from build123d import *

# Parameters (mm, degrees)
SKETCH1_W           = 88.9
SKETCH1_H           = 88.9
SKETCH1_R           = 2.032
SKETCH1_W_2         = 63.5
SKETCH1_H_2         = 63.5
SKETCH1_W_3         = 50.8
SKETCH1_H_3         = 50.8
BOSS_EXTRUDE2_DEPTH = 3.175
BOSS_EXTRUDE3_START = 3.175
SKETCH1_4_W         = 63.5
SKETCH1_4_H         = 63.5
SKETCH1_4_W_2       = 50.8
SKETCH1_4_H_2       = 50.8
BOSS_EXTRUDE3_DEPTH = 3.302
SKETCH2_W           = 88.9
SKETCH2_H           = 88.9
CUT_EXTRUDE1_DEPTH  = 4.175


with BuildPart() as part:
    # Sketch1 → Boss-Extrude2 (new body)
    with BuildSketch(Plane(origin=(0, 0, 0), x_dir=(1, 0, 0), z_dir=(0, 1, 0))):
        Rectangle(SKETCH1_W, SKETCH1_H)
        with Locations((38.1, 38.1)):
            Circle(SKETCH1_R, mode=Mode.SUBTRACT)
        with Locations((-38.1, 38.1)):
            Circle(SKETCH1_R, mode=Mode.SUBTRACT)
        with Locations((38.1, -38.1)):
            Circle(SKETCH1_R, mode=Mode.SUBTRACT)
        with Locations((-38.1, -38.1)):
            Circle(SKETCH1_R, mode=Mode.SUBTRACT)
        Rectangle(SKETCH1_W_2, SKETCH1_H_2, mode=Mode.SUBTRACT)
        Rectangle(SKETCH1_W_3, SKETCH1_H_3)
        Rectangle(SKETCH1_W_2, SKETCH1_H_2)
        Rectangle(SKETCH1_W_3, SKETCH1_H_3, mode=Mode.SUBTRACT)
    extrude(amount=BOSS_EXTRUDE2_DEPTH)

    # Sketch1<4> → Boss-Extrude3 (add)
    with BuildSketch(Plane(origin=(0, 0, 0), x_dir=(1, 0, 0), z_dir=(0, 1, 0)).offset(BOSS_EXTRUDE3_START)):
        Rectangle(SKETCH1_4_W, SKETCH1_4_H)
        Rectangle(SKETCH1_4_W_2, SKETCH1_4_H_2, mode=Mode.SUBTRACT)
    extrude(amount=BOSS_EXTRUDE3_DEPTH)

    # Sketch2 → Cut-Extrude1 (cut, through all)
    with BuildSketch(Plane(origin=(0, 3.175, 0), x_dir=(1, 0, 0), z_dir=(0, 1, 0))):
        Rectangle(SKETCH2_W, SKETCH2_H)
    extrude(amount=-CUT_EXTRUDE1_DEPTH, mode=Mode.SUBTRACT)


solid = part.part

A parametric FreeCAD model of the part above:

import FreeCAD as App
import Part
import Sketcher
from FreeCAD import Vector
Q = App.Units.Quantity

doc = App.newDocument("Part")
params = doc.addObject("Spreadsheet::Sheet", "Params")
for row, (alias, value) in enumerate([
    ("sketch1_diameter", "0.16 in"),
    ("sketch1_width", "2 in"),
    ("sketch1_width2", "3.5 in"),
    ("pad1_length", "0.125 in"),
    ("sketch2_width", "2 in"),
    ("sketch2_width2", "2.5 in"),
    ("pad2_length", "0.13 in"),
    ("sketch3_width", "3.5 in"),
], start=1):
    params.set(f"A{row}", alias)
    params.set(f"B{row}", "=" + value)
    params.setAlias(f"B{row}", alias)

body = doc.addObject("PartDesign::Body", "Body")

sketch1 = body.newObject("Sketcher::SketchObject", "Sketch")
sketch1.AttachmentSupport = (doc.getObject("XZ_Plane"), [""])
sketch1.MapMode = "FlatFace"
sketch1.addGeometry([
    Part.LineSegment(Vector(-44.5, -44.5, 0), Vector(-44.5, 44.5, 0)),
    Part.LineSegment(Vector(-44.5, 44.5, 0), Vector(44.5, 44.5, 0)),
    Part.LineSegment(Vector(44.5, 44.5, 0), Vector(44.5, -44.5, 0)),
    Part.LineSegment(Vector(44.5, -44.5, 0), Vector(-44.5, -44.5, 0)),
    Part.Circle(Vector(-38.1, 38.1, 0), Vector(0, 0, 1), 2),
    Part.Circle(Vector(38.1, 38.1, 0), Vector(0, 0, 1), 2),
    Part.Circle(Vector(-38.1, -38.1, 0), Vector(0, 0, 1), 2),
    Part.LineSegment(Vector(25.4, 25.4, 0), Vector(-25.4, 25.4, 0)),
    Part.LineSegment(Vector(-25.4, 25.4, 0), Vector(-25.4, -25.4, 0)),
    Part.LineSegment(Vector(-25.4, -25.4, 0), Vector(25.4, -25.4, 0)),
    Part.LineSegment(Vector(25.4, -25.4, 0), Vector(25.4, 25.4, 0)),
    Part.Circle(Vector(38.1, -38.1, 0), Vector(0, 0, 1), 2),
], False)
sketch1.addConstraint([
    Sketcher.Constraint("Coincident", 0, 2, 1, 1),
    Sketcher.Constraint("Coincident", 1, 2, 2, 1),
    Sketcher.Constraint("Coincident", 2, 2, 3, 1),
    Sketcher.Constraint("Coincident", 3, 2, 0, 1),
    Sketcher.Constraint("Coincident", 7, 2, 8, 1),
    Sketcher.Constraint("Coincident", 8, 2, 9, 1),
    Sketcher.Constraint("Coincident", 9, 2, 10, 1),
    Sketcher.Constraint("Coincident", 10, 2, 7, 1),
    Sketcher.Constraint("Vertical", 0),
    Sketcher.Constraint("Horizontal", 1),
    Sketcher.Constraint("Vertical", 2),
    Sketcher.Constraint("Horizontal", 3),
    Sketcher.Constraint("Horizontal", 7),
    Sketcher.Constraint("Vertical", 8),
    Sketcher.Constraint("Horizontal", 9),
    Sketcher.Constraint("Vertical", 10),
    Sketcher.Constraint("Equal", 4, 5),
    Sketcher.Constraint("Equal", 5, 6),
    Sketcher.Constraint("Equal", 6, 11),
    Sketcher.Constraint("Symmetric", 5, 3, 6, 3, -1, 1),
    Sketcher.Constraint("Symmetric", 4, 3, 11, 3, -1, 1),
    Sketcher.Constraint("Symmetric", 0, 2, 2, 2, -1, 1),
    Sketcher.Constraint("Symmetric", 7, 2, 9, 2, -1, 1),
    Sketcher.Constraint("Symmetric", 4, 3, 5, 3, -2),
    Sketcher.Constraint("Equal", 3, 0),
    Sketcher.Constraint("Equal", 9, 8),
    Sketcher.Constraint("Diameter", 4, Q("0.16 in")),
    Sketcher.Constraint("DistanceX", 7, 2, 7, 1, Q("2 in")),
    Sketcher.Constraint("DistanceX", 1, 1, 1, 2, Q("3.5 in")),
    Sketcher.Constraint("DistanceX", 4, 3, 5, 3, Q("3 in")),
    Sketcher.Constraint("DistanceY", 6, 3, 4, 3, Q("3 in")),
])
sketch1.setExpression("Constraints[26]", "Params.sketch1_diameter")
sketch1.setExpression("Constraints[27]", "Params.sketch1_width")
sketch1.setExpression("Constraints[28]", "Params.sketch1_width2")
pad1 = body.newObject("PartDesign::Pad", "Pad")
pad1.Profile = sketch1
pad1.setExpression("Length", "Params.pad1_length")
pad1.Reversed = True

sketch2 = body.newObject("Sketcher::SketchObject", "Sketch001")
sketch2.AttachmentSupport = (doc.getObject("XZ_Plane"), [""])
sketch2.MapMode = "FlatFace"
sketch2.AttachmentOffset = App.Placement(Vector(0, 0, -0.125 * 25.4), App.Rotation())
sketch2.addGeometry([
    Part.LineSegment(Vector(-32, -32, 0), Vector(-32, 32, 0)),
    Part.LineSegment(Vector(-32, 32, 0), Vector(32, 32, 0)),
    Part.LineSegment(Vector(32, 32, 0), Vector(32, -32, 0)),
    Part.LineSegment(Vector(32, -32, 0), Vector(-32, -32, 0)),
    Part.LineSegment(Vector(25, 25, 0), Vector(-25, 25, 0)),
    Part.LineSegment(Vector(-25, 25, 0), Vector(-25, -25, 0)),
    Part.LineSegment(Vector(-25, -25, 0), Vector(25, -25, 0)),
    Part.LineSegment(Vector(25, -25, 0), Vector(25, 25, 0)),
], False)
sketch2.addConstraint([
    Sketcher.Constraint("Coincident", 0, 2, 1, 1),
    Sketcher.Constraint("Coincident", 1, 2, 2, 1),
    Sketcher.Constraint("Coincident", 2, 2, 3, 1),
    Sketcher.Constraint("Coincident", 3, 2, 0, 1),
    Sketcher.Constraint("Coincident", 4, 2, 5, 1),
    Sketcher.Constraint("Coincident", 5, 2, 6, 1),
    Sketcher.Constraint("Coincident", 6, 2, 7, 1),
    Sketcher.Constraint("Coincident", 7, 2, 4, 1),
    Sketcher.Constraint("Vertical", 0),
    Sketcher.Constraint("Horizontal", 1),
    Sketcher.Constraint("Vertical", 2),
    Sketcher.Constraint("Horizontal", 3),
    Sketcher.Constraint("Horizontal", 4),
    Sketcher.Constraint("Vertical", 5),
    Sketcher.Constraint("Horizontal", 6),
    Sketcher.Constraint("Vertical", 7),
    Sketcher.Constraint("Symmetric", 0, 2, 2, 2, -1, 1),
    Sketcher.Constraint("Symmetric", 4, 2, 6, 2, -1, 1),
    Sketcher.Constraint("Equal", 3, 0),
    Sketcher.Constraint("Equal", 6, 5),
    Sketcher.Constraint("DistanceX", 4, 2, 4, 1, Q("2 in")),
    Sketcher.Constraint("DistanceX", 1, 1, 1, 2, Q("2.5 in")),
])
sketch2.setExpression("Constraints[20]", "Params.sketch2_width")
sketch2.setExpression("Constraints[21]", "Params.sketch2_width2")
pad2 = body.newObject("PartDesign::Pad", "Pad001")
pad2.Profile = sketch2
pad2.setExpression("Length", "Params.pad2_length")
pad2.Reversed = True

sketch3 = body.newObject("Sketcher::SketchObject", "Sketch002")
sketch3.AttachmentSupport = (doc.getObject("XZ_Plane"), [""])
sketch3.MapMode = "FlatFace"
sketch3.AttachmentOffset = App.Placement(Vector(0, 0, -0.125 * 25.4), App.Rotation())
sketch3.addGeometry([
    Part.LineSegment(Vector(-44, -44, 0), Vector(-44, 44, 0)),
    Part.LineSegment(Vector(-44, 44, 0), Vector(44, 44, 0)),
    Part.LineSegment(Vector(44, 44, 0), Vector(44, -44, 0)),
    Part.LineSegment(Vector(44, -44, 0), Vector(-44, -44, 0)),
], False)
sketch3.addConstraint([
    Sketcher.Constraint("Coincident", 0, 2, 1, 1),
    Sketcher.Constraint("Coincident", 1, 2, 2, 1),
    Sketcher.Constraint("Coincident", 2, 2, 3, 1),
    Sketcher.Constraint("Coincident", 3, 2, 0, 1),
    Sketcher.Constraint("Vertical", 0),
    Sketcher.Constraint("Horizontal", 1),
    Sketcher.Constraint("Vertical", 2),
    Sketcher.Constraint("Horizontal", 3),
    Sketcher.Constraint("Symmetric", 0, 2, 2, 2, -1, 1),
    Sketcher.Constraint("Equal", 3, 0),
    Sketcher.Constraint("DistanceX", 1, 1, 1, 2, Q("3.5 in")),
])
sketch3.setExpression("Constraints[10]", "Params.sketch3_width")
pocket1 = body.newObject("PartDesign::Pocket", "Pocket")
pocket1.Profile = sketch3
pocket1.Type = "ThroughAll"
pocket1.Reversed = True

doc.recompute()
